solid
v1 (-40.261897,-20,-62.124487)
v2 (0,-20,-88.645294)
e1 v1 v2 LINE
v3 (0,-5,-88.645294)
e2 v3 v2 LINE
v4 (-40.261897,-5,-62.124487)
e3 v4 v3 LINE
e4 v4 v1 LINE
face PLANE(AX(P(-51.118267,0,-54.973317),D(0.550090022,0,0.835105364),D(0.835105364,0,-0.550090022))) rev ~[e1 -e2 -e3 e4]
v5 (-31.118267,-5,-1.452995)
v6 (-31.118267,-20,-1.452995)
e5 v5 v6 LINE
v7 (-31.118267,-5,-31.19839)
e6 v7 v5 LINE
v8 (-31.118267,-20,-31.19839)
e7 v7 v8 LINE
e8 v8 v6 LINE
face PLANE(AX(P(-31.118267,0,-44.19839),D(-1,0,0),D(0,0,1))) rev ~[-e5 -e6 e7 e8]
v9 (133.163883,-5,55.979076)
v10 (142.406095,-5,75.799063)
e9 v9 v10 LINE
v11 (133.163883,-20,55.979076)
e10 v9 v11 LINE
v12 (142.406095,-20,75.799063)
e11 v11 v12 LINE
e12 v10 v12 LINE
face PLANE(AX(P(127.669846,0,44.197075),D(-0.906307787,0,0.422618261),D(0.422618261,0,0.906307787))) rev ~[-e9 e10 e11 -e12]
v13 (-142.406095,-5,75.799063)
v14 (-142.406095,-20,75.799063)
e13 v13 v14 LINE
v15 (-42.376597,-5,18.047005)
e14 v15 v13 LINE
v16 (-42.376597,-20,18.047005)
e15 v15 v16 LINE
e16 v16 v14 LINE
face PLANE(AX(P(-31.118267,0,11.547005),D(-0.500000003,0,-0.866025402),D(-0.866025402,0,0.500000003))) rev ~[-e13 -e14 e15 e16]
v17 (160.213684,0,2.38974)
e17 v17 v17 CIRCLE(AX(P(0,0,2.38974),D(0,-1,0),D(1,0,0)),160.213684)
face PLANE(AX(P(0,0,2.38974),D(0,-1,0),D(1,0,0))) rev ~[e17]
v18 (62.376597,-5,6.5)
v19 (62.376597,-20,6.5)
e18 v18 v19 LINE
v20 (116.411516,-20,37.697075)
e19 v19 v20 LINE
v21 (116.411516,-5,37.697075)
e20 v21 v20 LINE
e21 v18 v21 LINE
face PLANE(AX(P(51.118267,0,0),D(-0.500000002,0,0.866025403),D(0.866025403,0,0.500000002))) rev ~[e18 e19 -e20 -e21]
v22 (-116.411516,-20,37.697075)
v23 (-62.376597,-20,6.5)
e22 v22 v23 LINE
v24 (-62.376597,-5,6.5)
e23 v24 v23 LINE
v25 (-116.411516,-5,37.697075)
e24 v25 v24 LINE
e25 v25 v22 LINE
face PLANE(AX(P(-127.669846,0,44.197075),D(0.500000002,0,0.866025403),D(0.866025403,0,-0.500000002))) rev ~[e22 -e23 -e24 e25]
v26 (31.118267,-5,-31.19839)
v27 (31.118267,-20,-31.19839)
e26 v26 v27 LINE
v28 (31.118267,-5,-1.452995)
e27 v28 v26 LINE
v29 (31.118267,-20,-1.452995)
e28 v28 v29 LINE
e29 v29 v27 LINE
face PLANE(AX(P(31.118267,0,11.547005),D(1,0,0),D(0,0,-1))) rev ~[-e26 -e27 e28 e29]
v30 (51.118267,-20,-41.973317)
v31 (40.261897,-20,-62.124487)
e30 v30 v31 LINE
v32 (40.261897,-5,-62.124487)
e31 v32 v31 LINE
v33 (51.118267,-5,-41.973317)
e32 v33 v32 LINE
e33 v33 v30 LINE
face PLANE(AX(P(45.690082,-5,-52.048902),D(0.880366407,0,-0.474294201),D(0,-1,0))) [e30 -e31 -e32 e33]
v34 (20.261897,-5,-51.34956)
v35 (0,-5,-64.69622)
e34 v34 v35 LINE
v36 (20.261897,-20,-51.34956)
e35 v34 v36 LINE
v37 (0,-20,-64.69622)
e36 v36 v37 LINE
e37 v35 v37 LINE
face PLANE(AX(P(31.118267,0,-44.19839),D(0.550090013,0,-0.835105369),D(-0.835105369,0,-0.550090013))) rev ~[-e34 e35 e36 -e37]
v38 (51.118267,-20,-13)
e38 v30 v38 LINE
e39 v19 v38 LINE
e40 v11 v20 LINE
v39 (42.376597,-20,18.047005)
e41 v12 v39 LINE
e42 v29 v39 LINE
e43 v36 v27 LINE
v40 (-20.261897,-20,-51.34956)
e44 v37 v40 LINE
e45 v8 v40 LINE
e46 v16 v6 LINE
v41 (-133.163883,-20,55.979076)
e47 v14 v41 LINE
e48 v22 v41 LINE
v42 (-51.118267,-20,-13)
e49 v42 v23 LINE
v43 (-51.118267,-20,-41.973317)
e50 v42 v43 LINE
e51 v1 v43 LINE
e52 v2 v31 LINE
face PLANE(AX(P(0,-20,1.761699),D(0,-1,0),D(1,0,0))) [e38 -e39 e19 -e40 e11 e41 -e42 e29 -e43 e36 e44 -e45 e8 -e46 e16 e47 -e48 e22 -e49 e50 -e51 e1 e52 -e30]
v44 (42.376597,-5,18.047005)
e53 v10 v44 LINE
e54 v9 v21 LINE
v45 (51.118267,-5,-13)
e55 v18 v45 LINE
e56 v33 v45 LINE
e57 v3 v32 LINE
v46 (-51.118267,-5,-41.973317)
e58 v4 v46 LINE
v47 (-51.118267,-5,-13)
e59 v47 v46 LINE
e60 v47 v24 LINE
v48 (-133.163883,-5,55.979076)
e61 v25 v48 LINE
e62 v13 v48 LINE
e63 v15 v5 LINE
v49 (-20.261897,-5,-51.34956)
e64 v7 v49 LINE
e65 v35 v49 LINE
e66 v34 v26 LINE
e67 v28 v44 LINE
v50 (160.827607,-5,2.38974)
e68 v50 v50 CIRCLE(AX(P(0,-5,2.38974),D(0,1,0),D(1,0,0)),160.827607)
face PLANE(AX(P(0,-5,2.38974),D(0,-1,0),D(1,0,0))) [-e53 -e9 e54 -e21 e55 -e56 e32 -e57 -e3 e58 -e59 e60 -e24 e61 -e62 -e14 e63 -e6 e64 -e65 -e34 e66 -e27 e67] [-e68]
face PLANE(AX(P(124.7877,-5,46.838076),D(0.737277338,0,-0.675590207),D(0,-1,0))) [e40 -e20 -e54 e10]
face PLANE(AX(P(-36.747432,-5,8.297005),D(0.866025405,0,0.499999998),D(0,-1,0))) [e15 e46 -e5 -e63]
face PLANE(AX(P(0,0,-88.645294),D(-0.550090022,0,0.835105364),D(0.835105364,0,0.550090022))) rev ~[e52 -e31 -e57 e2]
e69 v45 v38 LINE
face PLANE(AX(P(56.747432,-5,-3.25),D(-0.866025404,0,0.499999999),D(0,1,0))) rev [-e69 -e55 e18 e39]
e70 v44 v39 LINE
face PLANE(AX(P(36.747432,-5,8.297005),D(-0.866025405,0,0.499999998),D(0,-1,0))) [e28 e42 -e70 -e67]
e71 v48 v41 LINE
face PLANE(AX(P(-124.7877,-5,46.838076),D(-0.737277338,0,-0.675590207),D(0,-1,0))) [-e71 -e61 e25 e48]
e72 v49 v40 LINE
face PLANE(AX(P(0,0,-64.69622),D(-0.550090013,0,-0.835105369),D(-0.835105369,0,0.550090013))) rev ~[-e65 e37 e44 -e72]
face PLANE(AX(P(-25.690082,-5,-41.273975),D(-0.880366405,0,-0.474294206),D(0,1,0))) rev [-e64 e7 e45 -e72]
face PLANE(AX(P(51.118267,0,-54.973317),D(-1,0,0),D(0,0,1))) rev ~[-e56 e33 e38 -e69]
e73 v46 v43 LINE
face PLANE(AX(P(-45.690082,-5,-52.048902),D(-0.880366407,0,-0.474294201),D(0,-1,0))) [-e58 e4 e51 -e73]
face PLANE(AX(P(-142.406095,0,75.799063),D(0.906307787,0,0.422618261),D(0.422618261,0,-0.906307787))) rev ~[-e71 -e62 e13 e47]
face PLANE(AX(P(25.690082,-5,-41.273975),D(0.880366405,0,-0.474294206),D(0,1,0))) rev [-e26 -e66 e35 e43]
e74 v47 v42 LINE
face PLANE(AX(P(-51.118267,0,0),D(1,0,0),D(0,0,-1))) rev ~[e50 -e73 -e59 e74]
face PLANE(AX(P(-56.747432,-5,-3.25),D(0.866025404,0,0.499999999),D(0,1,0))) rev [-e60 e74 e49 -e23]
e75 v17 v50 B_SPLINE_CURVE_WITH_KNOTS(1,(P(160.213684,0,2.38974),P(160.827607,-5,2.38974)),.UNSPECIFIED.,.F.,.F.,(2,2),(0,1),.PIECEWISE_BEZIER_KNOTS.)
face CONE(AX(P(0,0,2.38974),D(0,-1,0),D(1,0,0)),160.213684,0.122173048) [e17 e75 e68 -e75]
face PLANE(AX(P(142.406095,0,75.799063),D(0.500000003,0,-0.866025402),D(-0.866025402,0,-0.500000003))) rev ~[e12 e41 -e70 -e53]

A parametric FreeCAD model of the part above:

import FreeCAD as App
import Part
import Sketcher

V = App.Vector
Q = App.Units.Quantity


def edges_at(feature, points):
    """Names of the edges that pass closest to the given points."""
    edges = feature.Shape.Edges
    near = lambda p: min(range(len(edges)), key=lambda i: edges[i].distToShape(Part.Vertex(*p))[0])
    return sorted({f"Edge{near(p) + 1}" for p in points})


def add_polygon(sketch, points):
    """Adds a closed chain of lines whose ends are joined by coincident constraints."""
    first, n = sketch.GeometryCount, len(points)
    for a, b in zip(points, points[1:] + points[:1]):
        sketch.addGeometry(Part.LineSegment(App.Vector(*a, 0), App.Vector(*b, 0)), False)
    for i in range(n):
        sketch.addConstraint(Sketcher.Constraint("Coincident", first + i, 2, first + (i + 1) % n, 1))

doc = App.newDocument("Part")
body = doc.addObject("PartDesign::Body", "Body")

# Sketch on XZ plane
sketch1 = body.newObject("Sketcher::SketchObject", "Sketch")
sketch1.AttachmentSupport = (doc.getObject("XZ_Plane"), [""])
sketch1.MapMode = "FlatFace"
add_polygon(sketch1, [(0, -89), (51, -55), (51, 0), (128, 44), (142, 76), (31, 12), (31, -44), (0, -65), (-31, -44), (-31, 12), (-142, 76), (-128, 44), (-51, 0), (-51, -55)])  # lines 0-13
sketch1.addConstraint([
    Sketcher.Constraint("Vertical", 1),
    Sketcher.Constraint("Vertical", 5),
    Sketcher.Constraint("Vertical", 8),
    Sketcher.Constraint("Vertical", 12),
    Sketcher.Constraint("Symmetric", 1, 2, 11, 2, -1, 1),
    Sketcher.Constraint("Symmetric", 5, 2, 7, 2, -2),
    Sketcher.Constraint("Symmetric", 3, 2, 9, 2, -2),
    Sketcher.Constraint("Symmetric", 2, 2, 10, 2, -2),
    Sketcher.Constraint("PointOnObject", 1, 2, -1),
    Sketcher.Constraint("PointOnObject", 6, 2, -2),
    Sketcher.Constraint("PointOnObject", 13, 2, -2),
    Sketcher.Constraint("Parallel", 2, 4),
    Sketcher.Constraint("Parallel", 0, 6),
    Sketcher.Constraint("Parallel", 9, 11),
    Sketcher.Constraint("Parallel", 7, 13),
    Sketcher.Constraint("Angle", 2, Q("30 deg")),
    Sketcher.Constraint("Angle", 3, Q("65 deg")),
    Sketcher.Constraint("DistanceX", 4, 2, 1, 2, 20.0),
    Sketcher.Constraint("Distance", 2, 88.39415),
    Sketcher.Constraint("DistanceY", 1, 1, 1, 2, 54.973317),
    Sketcher.Constraint("DistanceY", 5, 2, 5, 1, 55.745395),
    Sketcher.Constraint("DistanceY", 5, 2, -1, 1, 44.19839),
    Sketcher.Constraint("DistanceY", 6, 2, -1, 1, 64.69622),
    Sketcher.Constraint("DistanceX", 9, 2, 4, 2, 173.524362),
])
pad1 = body.newObject("PartDesign::Pad", "Pad")
pad1.Profile = sketch1
pad1.Length = 20

# Sketch on XZ plane
sketch2 = body.newObject("Sketcher::SketchObject", "Sketch001")
sketch2.AttachmentSupport = (doc.getObject("XZ_Plane"), [""])
sketch2.MapMode = "FlatFace"
sketch2.addGeometry(Part.Circle(V(0, 2, 0), V(0, 0, 1), 160), False)
sketch2.addConstraint([
    Sketcher.Constraint("PointOnObject", 0, 3, -2),
    Sketcher.Constraint("Diameter", 0, 320.427368),
    Sketcher.Constraint("DistanceY", -1, 1, 0, 3, 2.38974),
])
pad2 = body.newObject("PartDesign::Pad", "Pad001")
pad2.Profile = sketch2
pad2.Length = 5
pad2.TaperAngle = 7
doc.recompute()

chamfer = body.newObject("PartDesign::Chamfer", "Chamfer")
chamfer.Base = (pad2, edges_at(pad2, [
    (31.118, -12.5, 11.547),
    (31.118, -12.5, -44.198),
    (-51.118, -12.5, -54.973),
    (-51.118, -12.5, 0),
    (-127.67, -12.5, 44.197),
    (-31.118, -12.5, 11.547),
    (-31.118, -12.5, -44.198),
    (51.118, -12.5, -54.973),
    (51.118, -12.5, 0),
    (127.67, -12.5, 44.197),
]))
chamfer.Size = 13

doc.recompute()
